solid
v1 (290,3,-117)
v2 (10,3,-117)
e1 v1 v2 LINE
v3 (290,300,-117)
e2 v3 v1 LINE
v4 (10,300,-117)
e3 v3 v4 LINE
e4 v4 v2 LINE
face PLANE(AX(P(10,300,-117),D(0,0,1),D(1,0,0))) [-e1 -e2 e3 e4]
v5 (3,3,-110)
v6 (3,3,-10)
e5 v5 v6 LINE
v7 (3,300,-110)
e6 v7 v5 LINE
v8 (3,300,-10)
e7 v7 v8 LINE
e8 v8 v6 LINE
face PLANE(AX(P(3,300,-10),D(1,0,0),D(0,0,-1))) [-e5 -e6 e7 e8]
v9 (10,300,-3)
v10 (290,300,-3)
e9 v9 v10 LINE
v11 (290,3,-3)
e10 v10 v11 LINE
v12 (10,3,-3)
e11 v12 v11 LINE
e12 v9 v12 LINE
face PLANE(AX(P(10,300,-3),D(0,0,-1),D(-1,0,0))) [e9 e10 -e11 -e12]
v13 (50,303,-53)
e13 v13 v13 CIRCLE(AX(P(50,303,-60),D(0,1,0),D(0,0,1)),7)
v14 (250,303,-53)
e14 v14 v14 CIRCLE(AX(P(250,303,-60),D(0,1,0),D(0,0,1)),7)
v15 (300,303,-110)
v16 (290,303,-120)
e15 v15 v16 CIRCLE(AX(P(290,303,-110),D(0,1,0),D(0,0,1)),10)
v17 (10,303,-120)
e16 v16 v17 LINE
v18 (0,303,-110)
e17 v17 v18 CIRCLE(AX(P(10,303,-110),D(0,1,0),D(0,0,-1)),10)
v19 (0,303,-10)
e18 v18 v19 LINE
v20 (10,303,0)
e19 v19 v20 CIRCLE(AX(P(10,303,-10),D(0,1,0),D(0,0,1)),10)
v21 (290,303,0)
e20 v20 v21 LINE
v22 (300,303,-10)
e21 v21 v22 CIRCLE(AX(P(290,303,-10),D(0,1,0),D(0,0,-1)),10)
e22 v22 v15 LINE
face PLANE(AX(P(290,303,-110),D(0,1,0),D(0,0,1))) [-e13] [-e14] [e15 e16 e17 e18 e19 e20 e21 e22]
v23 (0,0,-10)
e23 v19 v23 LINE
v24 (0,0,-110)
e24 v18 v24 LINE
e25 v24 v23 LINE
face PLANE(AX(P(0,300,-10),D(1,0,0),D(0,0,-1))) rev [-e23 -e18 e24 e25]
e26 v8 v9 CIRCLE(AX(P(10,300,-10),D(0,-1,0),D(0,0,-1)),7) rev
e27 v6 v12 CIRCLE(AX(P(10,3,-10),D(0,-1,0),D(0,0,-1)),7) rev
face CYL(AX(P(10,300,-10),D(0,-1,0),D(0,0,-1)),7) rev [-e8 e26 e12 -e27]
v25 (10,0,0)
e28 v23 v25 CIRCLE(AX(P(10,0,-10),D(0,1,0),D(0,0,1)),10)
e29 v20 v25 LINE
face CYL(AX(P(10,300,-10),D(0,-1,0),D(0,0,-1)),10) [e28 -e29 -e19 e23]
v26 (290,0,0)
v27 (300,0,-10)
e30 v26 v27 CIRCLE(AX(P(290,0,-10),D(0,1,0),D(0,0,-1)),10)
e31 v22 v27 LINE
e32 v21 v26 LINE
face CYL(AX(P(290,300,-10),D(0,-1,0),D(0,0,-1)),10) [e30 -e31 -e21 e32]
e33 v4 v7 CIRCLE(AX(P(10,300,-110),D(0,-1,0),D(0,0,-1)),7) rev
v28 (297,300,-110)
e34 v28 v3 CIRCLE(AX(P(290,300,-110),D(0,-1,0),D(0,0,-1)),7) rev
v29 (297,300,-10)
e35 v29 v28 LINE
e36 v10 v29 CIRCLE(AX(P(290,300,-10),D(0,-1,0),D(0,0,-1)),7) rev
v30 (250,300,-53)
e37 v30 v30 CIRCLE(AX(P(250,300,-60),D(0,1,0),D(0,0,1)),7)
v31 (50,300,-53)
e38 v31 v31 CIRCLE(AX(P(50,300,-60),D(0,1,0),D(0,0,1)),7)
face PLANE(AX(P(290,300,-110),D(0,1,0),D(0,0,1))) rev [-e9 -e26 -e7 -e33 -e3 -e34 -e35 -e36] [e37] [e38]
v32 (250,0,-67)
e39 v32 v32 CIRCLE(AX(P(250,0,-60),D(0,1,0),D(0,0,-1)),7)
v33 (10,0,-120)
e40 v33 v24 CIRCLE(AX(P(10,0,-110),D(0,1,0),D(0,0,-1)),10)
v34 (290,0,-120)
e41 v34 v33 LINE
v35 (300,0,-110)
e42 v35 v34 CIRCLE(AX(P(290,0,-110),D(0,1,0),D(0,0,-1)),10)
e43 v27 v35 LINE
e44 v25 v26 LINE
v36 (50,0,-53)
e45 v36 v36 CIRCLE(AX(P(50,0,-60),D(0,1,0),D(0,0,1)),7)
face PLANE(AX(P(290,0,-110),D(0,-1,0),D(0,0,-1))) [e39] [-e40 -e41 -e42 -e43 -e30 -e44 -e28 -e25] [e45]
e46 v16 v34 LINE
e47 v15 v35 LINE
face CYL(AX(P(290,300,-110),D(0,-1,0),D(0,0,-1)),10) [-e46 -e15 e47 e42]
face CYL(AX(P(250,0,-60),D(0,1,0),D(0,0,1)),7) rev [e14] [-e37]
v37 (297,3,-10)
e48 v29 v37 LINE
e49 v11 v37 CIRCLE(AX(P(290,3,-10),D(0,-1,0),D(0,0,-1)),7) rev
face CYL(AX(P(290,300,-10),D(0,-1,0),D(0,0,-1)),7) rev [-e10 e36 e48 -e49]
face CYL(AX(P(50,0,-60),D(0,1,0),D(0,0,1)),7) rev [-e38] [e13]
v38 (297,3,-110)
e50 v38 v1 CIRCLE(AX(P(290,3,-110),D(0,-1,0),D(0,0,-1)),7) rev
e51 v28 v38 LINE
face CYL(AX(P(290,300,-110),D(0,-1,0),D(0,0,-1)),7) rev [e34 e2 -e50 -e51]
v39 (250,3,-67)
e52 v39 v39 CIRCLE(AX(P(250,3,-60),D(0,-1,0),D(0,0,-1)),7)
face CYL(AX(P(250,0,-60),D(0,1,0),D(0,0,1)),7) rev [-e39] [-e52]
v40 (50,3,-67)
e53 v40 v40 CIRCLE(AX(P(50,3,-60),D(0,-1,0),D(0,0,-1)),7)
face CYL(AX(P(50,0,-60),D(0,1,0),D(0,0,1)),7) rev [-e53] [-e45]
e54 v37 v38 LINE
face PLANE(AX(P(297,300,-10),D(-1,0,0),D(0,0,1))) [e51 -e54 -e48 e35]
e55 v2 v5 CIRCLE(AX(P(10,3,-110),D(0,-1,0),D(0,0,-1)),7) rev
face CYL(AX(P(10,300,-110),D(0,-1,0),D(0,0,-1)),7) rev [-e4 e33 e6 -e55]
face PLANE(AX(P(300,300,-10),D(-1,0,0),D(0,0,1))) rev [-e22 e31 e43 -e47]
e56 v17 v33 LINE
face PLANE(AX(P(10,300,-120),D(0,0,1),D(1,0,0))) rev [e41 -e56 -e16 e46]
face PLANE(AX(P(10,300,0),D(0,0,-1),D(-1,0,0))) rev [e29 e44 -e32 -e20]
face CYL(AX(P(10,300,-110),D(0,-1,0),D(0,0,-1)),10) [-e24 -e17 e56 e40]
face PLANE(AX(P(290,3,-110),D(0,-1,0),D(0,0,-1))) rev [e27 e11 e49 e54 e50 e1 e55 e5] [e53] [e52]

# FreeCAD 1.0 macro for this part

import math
import FreeCAD as App
import Part
import Sketcher

V = App.Vector


def faces_at(feature, points):
    """Names of the faces that lie closest to the given points."""
    faces = feature.Shape.Faces
    near = lambda p: min(range(len(faces)), key=lambda i: faces[i].distToShape(Part.Vertex(*p))[0])
    return sorted({f"Face{near(p) + 1}" for p in points})

doc = App.newDocument("Part")
body = doc.addObject("PartDesign::Body", "Body")

# Sketch on XZ plane
sketch1 = body.newObject("Sketcher::SketchObject", "Sketch")
sketch1.AttachmentSupport = (doc.getObject("XZ_Plane"), [""])
sketch1.MapMode = "FlatFace"
sketch1.addGeometry([
    Part.LineSegment(V(10, 0, 0), V(290, 0, 0)),  # 0
    Part.ArcOfCircle(Part.Circle(V(290, -10, 0), V(0, 0, 1), 10), math.radians(0), math.radians(90)),  # 1
    Part.LineSegment(V(300, -10, 0), V(300, -110, 0)),  # 2
    Part.ArcOfCircle(Part.Circle(V(290, -110, 0), V(0, 0, 1), 10), math.radians(-90), math.radians(0)),  # 3
    Part.LineSegment(V(290, -120, 0), V(10, -120, 0)),  # 4
    Part.ArcOfCircle(Part.Circle(V(10, -110, 0), V(0, 0, 1), 10), math.radians(180), math.radians(270)),  # 5
    Part.LineSegment(V(0, -110, 0), V(0, -10, 0)),  # 6
    Part.ArcOfCircle(Part.Circle(V(10, -10, 0), V(0, 0, 1), 10), math.radians(90), math.radians(180)),  # 7
], False)
sketch1.addConstraint([
    Sketcher.Constraint("Tangent", 0, 2, 1, 2),
    Sketcher.Constraint("Tangent", 1, 1, 2, 1),
    Sketcher.Constraint("Tangent", 2, 2, 3, 2),
    Sketcher.Constraint("Tangent", 3, 1, 4, 1),
    Sketcher.Constraint("Tangent", 4, 2, 5, 2),
    Sketcher.Constraint("Tangent", 5, 1, 6, 1),
    Sketcher.Constraint("Tangent", 6, 2, 7, 2),
    Sketcher.Constraint("Tangent", 7, 1, 0, 1),
    Sketcher.Constraint("Horizontal", 0),
    Sketcher.Constraint("Vertical", 2),
    Sketcher.Constraint("Horizontal", 4),
    Sketcher.Constraint("Vertical", 6),
    Sketcher.Constraint("Equal", 1, 3),
    Sketcher.Constraint("Equal", 3, 5),
    Sketcher.Constraint("Equal", 5, 7),
    Sketcher.Constraint("PointOnObject", 0, 2, -1),
    Sketcher.Constraint("PointOnObject", 5, 1, -2),
    Sketcher.Constraint("Radius", 1, 10.0),
    Sketcher.Constraint("DistanceX", 0, 1, 0, 2, 280.0),
    Sketcher.Constraint("DistanceY", 2, 2, 2, 1, 100.0),
])
pad1 = body.newObject("PartDesign::Pad", "Pad")
pad1.Profile = sketch1
pad1.Length = 300
pad1.Reversed = True
doc.recompute()

thickness = body.newObject("PartDesign::Thickness", "Thickness")
thickness.Base = (pad1, faces_at(pad1, [(150, 300, -60)]))
thickness.Value = 3
thickness.Reversed = True
thickness.Join = "Intersection"

# Sketch on XZ plane
sketch2 = body.newObject("Sketcher::SketchObject", "Sketch001")
sketch2.AttachmentSupport = (doc.getObject("XZ_Plane"), [""])
sketch2.MapMode = "FlatFace"
sketch2.AttachmentOffset = App.Placement(V(0, 0, -300), App.Rotation())
sketch2.addGeometry([
    Part.LineSegment(V(10, 0, 0), V(290, 0, 0)),  # 0
    Part.ArcOfCircle(Part.Circle(V(290, -10, 0), V(0, 0, 1), 10), math.radians(0), math.radians(90)),  # 1
    Part.LineSegment(V(300, -10, 0), V(300, -110, 0)),  # 2
    Part.ArcOfCircle(Part.Circle(V(290, -110, 0), V(0, 0, 1), 10), math.radians(-90), math.radians(0)),  # 3
    Part.LineSegment(V(290, -120, 0), V(10, -120, 0)),  # 4
    Part.ArcOfCircle(Part.Circle(V(10, -110, 0), V(0, 0, 1), 10), math.radians(180), math.radians(270)),  # 5
    Part.LineSegment(V(0, -110, 0), V(0, -10, 0)),  # 6
    Part.ArcOfCircle(Part.Circle(V(10, -10, 0), V(0, 0, 1), 10), math.radians(90), math.radians(180)),  # 7
], False)
sketch2.addConstraint([
    Sketcher.Constraint("Tangent", 0, 2, 1, 2),
    Sketcher.Constraint("Tangent", 1, 1, 2, 1),
    Sketcher.Constraint("Tangent", 2, 2, 3, 2),
    Sketcher.Constraint("Tangent", 3, 1, 4, 1),
    Sketcher.Constraint("Tangent", 4, 2, 5, 2),
    Sketcher.Constraint("Tangent", 5, 1, 6, 1),
    Sketcher.Constraint("Tangent", 6, 2, 7, 2),
    Sketcher.Constraint("Tangent", 7, 1, 0, 1),
    Sketcher.Constraint("Horizontal", 0),
    Sketcher.Constraint("Vertical", 2),
    Sketcher.Constraint("Horizontal", 4),
    Sketcher.Constraint("Vertical", 6),
    Sketcher.Constraint("Equal", 1, 3),
    Sketcher.Constraint("Equal", 3, 5),
    Sketcher.Constraint("Equal", 5, 7),
    Sketcher.Constraint("PointOnObject", 0, 2, -1),
    Sketcher.Constraint("PointOnObject", 5, 1, -2),
    Sketcher.Constraint("Radius", 1, 10.0),
    Sketcher.Constraint("DistanceX", 0, 1, 0, 2, 280.0),
    Sketcher.Constraint("DistanceY", 2, 2, 2, 1, 100.0),
])
pad2 = body.newObject("PartDesign::Pad", "Pad001")
pad2.Profile = sketch2
pad2.Length = 3
pad2.Reversed = True

# Sketch on XZ plane
sketch3 = body.newObject("Sketcher::SketchObject", "Sketch002")
sketch3.AttachmentSupport = (doc.getObject("XZ_Plane"), [""])
sketch3.MapMode = "FlatFace"
sketch3.AttachmentOffset = App.Placement(V(0, 0, -303), App.Rotation())
sketch3.addGeometry([
    Part.Circle(V(50, -60, 0), V(0, 0, 1), 7),
    Part.Circle(V(250, -60, 0), V(0, 0, 1), 7),
], False)
sketch3.addConstraint([
    Sketcher.Constraint("Equal", 0, 1),
    Sketcher.Constraint("Horizontal", 0, 3, 1, 3),
    Sketcher.Constraint("Diameter", 0, 14.0),
    Sketcher.Constraint("DistanceX", -1, 1, 0, 3, 50.0),
    Sketcher.Constraint("DistanceY", 0, 3, -1, 1, 60.0),
    Sketcher.Constraint("DistanceX", -1, 1, 1, 3, 250.0),
])
pocket1 = body.newObject("PartDesign::Pocket", "Pocket")
pocket1.Profile = sketch3
pocket1.Type = "ThroughAll"
pocket1.Midplane = True

doc.recompute()
